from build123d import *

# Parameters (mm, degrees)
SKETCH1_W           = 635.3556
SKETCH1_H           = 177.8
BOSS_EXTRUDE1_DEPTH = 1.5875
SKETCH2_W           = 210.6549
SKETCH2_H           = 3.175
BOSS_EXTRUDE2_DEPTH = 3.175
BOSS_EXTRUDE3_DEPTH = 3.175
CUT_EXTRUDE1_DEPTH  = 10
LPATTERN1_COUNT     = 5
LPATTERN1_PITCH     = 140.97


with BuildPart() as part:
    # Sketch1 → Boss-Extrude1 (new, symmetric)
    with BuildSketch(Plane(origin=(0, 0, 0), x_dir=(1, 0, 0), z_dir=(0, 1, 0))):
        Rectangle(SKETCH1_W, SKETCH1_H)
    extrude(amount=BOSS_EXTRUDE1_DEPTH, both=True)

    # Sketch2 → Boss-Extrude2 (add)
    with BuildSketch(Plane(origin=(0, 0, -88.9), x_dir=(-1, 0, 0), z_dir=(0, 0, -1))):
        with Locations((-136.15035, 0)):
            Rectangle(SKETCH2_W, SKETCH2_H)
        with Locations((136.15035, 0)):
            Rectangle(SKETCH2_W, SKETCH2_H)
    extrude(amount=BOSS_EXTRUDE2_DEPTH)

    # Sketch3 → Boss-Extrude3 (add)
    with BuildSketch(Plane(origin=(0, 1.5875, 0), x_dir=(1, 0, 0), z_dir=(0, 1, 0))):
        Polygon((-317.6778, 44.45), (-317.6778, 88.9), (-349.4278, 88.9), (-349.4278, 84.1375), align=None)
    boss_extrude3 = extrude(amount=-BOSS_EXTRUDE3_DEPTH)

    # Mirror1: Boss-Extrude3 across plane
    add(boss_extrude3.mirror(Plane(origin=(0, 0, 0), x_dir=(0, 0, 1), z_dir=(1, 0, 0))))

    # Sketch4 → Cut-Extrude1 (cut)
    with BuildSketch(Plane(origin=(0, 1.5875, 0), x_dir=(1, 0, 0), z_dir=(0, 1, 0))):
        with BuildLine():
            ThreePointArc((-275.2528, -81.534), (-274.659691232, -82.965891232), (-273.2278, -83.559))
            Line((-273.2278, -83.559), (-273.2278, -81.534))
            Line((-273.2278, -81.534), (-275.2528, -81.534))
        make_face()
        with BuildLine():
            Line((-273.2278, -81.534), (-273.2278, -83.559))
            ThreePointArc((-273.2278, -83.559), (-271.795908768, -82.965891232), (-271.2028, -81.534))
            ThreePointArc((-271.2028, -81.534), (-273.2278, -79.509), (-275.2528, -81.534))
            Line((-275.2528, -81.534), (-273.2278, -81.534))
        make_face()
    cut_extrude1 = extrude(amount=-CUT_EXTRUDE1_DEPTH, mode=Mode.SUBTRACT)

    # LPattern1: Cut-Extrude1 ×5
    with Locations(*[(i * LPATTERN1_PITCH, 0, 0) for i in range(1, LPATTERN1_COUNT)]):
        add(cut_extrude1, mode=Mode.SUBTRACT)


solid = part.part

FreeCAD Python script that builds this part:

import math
import FreeCAD as App
import Part
import Sketcher
Q = App.Units.Quantity


def add_polygon(sketch, points):
    """Adds a closed chain of lines whose ends are joined by coincident constraints."""
    first, n = sketch.GeometryCount, len(points)
    for a, b in zip(points, points[1:] + points[:1]):
        sketch.addGeometry(Part.LineSegment(App.Vector(*a, 0), App.Vector(*b, 0)), False)
    for i in range(n):
        sketch.addConstraint(Sketcher.Constraint("Coincident", first + i, 2, first + (i + 1) % n, 1))

doc = App.newDocument("Part")
body = doc.addObject("PartDesign::Body", "Body")

# Sketch on XZ plane
sketch1 = body.newObject("Sketcher::SketchObject", "Sketch")
sketch1.AttachmentSupport = (doc.getObject("XZ_Plane"), [""])
sketch1.MapMode = "FlatFace"
add_polygon(sketch1, [(-317.6778, -88.9), (-317.6778, 88.9), (317.6778, 88.9), (317.6778, -88.9)])  # lines 0-3
sketch1.addConstraint([
    Sketcher.Constraint("Vertical", 0),
    Sketcher.Constraint("Horizontal", 1),
    Sketcher.Constraint("Vertical", 2),
    Sketcher.Constraint("Horizontal", 3),
    Sketcher.Constraint("Symmetric", 0, 2, 2, 2, -1, 1),
    Sketcher.Constraint("DistanceY", 0, 1, 0, 2, Q("7 in")),
    Sketcher.Constraint("DistanceX", 1, 1, 1, 2, Q("25.014 in")),
])
pad1 = body.newObject("PartDesign::Pad", "Pad")
pad1.Profile = sketch1
pad1.Length = Q("0.125 in")
pad1.Midplane = True

# Sketch on XY plane
sketch2 = body.newObject("Sketcher::SketchObject", "Sketch001")
sketch2.AttachmentSupport = (doc.getObject("XY_Plane"), [""])
sketch2.MapMode = "FlatFace"
sketch2.AttachmentOffset = App.Placement(App.Vector(0, 0, -3.5 * 25.4), App.Rotation())
add_polygon(sketch2, [(241.4778, 1.5875), (241.4778, -1.5875), (30.8229, -1.5875), (30.8229, 1.5875)])  # lines 0-3
add_polygon(sketch2, [(-30.8229, 1.5875), (-30.8229, -1.5875), (-241.4778, -1.5875), (-241.4778, 1.5875)])  # lines 4-7
sketch2.addConstraint([
    Sketcher.Constraint("Vertical", 0),
    Sketcher.Constraint("Horizontal", 1),
    Sketcher.Constraint("Vertical", 2),
    Sketcher.Constraint("Horizontal", 3),
    Sketcher.Constraint("Vertical", 4),
    Sketcher.Constraint("Horizontal", 5),
    Sketcher.Constraint("Vertical", 6),
    Sketcher.Constraint("Horizontal", 7),
    Sketcher.Constraint("Symmetric", 2, 2, 4, 2, -1, 1),
    Sketcher.Constraint("Symmetric", 0, 2, 6, 2, -1, 1),
    Sketcher.Constraint("Horizontal", 1, 2, 4, 2),
    Sketcher.Constraint("DistanceY", 0, 2, 0, 1, Q("0.125 in")),
    Sketcher.Constraint("DistanceX", 1, 2, 1, 1, Q("8.2935 in")),
    Sketcher.Constraint("DistanceX", -1, 1, 0, 2, Q("9.507 in")),
])
pad2 = body.newObject("PartDesign::Pad", "Pad001")
pad2.Profile = sketch2
pad2.Length = Q("0.125 in")
pad2.Reversed = True

# Sketch on XZ plane
sketch3 = body.newObject("Sketcher::SketchObject", "Sketch002")
sketch3.AttachmentSupport = (doc.getObject("XZ_Plane"), [""])
sketch3.MapMode = "FlatFace"
sketch3.AttachmentOffset = App.Placement(App.Vector(0, 0, -0.0625 * 25.4), App.Rotation())
add_polygon(sketch3, [(-317.6778, -44.45), (-317.6778, -88.9), (-349.4278, -88.9), (-349.4278, -84.1375)])  # lines 0-3
sketch3.addConstraint([
    Sketcher.Constraint("Vertical", 0),
    Sketcher.Constraint("Horizontal", 1),
    Sketcher.Constraint("Vertical", 2),
    Sketcher.Constraint("DistanceX", 1, 2, 1, 1, Q("1.25 in")),
    Sketcher.Constraint("DistanceY", 0, 2, 0, 1, Q("1.75 in")),
    Sketcher.Constraint("DistanceY", 0, 2, -1, 1, Q("3.5 in")),
    Sketcher.Constraint("DistanceY", 2, 1, 2, 2, Q("0.1875 in")),
    Sketcher.Constraint("DistanceX", 0, 2, -1, 1, Q("12.507 in")),
])
pad3 = body.newObject("PartDesign::Pad", "Pad002")
pad3.Profile = sketch3
pad3.Length = Q("0.125 in")
doc.recompute()

mirrored = body.newObject("PartDesign::Mirrored", "Mirrored")
mirrored.Originals = [pad3]
mirrored.MirrorPlane = (doc.getObject("YZ_Plane"), [""])
body.Tip = mirrored

# Sketch on XZ plane
sketch4 = body.newObject("Sketcher::SketchObject", "Sketch003")
sketch4.AttachmentSupport = (doc.getObject("XZ_Plane"), [""])
sketch4.MapMode = "FlatFace"
sketch4.AttachmentOffset = App.Placement(App.Vector(0, 0, -0.0625 * 25.4), App.Rotation())
sketch4.addGeometry([
    Part.ArcOfCircle(Part.Circle(App.Vector(-273.2278, 81.534, 0), App.Vector(0, 0, 1), 2.025), math.radians(90), math.radians(180)),
    Part.ArcOfCircle(Part.Circle(App.Vector(-273.2278, 81.534, 0), App.Vector(0, 0, 1), 2.025), math.radians(0), math.radians(90)),
    Part.ArcOfCircle(Part.Circle(App.Vector(-273.2278, 81.534, 0), App.Vector(0, 0, 1), 2.025), math.radians(180), math.radians(360)),
], False)
sketch4.addConstraint([
    Sketcher.Constraint("Tangent", 0, 1, 1, 2),
    Sketcher.Constraint("Tangent", 1, 1, 2, 2),
    Sketcher.Constraint("Tangent", 2, 1, 0, 2),
    Sketcher.Constraint("Horizontal", 2, 3, 1, 1),
    Sketcher.Constraint("Horizontal", 1, 1, 2, 1),
    Sketcher.Constraint("Vertical", 2, 3, 0, 1),
    Sketcher.Constraint("DistanceY", -1, 1, 0, 3, Q("3.21 in")),
    Sketcher.Constraint("Radius", 0, Q("2.025 mm")),
    Sketcher.Constraint("DistanceX", 0, 3, -1, 1, Q("10.757 in")),
])
pocket1 = body.newObject("PartDesign::Pocket", "Pocket")
pocket1.Profile = sketch4
pocket1.Length = 10
pocket1.Reversed = True
doc.recompute()

linearpattern = body.newObject("PartDesign::LinearPattern", "LinearPattern")
linearpattern.Originals = [pocket1]
linearpattern.Direction = (doc.getObject("X_Axis"), [""])
linearpattern.Mode = "offset"
linearpattern.Offset = Q("5.55 in")
linearpattern.Occurrences = 5
body.Tip = linearpattern

doc.recompute()
